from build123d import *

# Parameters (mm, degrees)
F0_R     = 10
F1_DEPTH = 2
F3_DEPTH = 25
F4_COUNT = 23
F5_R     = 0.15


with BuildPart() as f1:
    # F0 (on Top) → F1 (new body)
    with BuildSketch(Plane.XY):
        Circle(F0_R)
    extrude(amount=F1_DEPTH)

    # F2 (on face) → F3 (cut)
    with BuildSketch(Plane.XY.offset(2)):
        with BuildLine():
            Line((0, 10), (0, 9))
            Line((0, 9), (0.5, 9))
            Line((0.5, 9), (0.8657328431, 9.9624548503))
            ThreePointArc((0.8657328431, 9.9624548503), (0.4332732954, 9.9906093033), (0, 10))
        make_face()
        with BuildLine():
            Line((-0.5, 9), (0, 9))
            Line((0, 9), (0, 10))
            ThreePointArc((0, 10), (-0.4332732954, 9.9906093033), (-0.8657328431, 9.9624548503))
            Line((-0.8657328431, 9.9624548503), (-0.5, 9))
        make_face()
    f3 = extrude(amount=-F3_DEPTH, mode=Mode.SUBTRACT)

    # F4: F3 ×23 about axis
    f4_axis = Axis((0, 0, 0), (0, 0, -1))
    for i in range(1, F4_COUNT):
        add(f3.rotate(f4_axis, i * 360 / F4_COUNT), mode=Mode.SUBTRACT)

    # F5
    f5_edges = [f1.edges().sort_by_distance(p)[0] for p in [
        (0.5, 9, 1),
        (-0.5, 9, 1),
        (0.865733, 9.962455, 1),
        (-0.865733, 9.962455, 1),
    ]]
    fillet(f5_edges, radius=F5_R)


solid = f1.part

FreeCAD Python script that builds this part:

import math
import FreeCAD as App
import Part
import Sketcher


def edges_at(feature, points):
    """Names of the edges that pass closest to the given points."""
    edges = feature.Shape.Edges
    near = lambda p: min(range(len(edges)), key=lambda i: edges[i].distToShape(Part.Vertex(*p))[0])
    return sorted({f"Edge{near(p) + 1}" for p in points})

doc = App.newDocument("Part")
body = doc.addObject("PartDesign::Body", "Body")

# Sketch on XY plane
sketch1 = body.newObject("Sketcher::SketchObject", "Sketch")
sketch1.AttachmentSupport = (doc.getObject("XY_Plane"), [""])
sketch1.MapMode = "FlatFace"
sketch1.addGeometry(Part.Circle(App.Vector(0, 0, 0), App.Vector(0, 0, 1), 10), False)
sketch1.addConstraint(Sketcher.Constraint("Coincident", 0, 3, -1, 1))
sketch1.addConstraint(Sketcher.Constraint("Diameter", 0, 20.0))
pad1 = body.newObject("PartDesign::Pad", "Pad")
pad1.Profile = sketch1
pad1.Length = 2

# Sketch on XY plane
sketch2 = body.newObject("Sketcher::SketchObject", "Sketch001")
sketch2.AttachmentSupport = (doc.getObject("XY_Plane"), [""])
sketch2.MapMode = "FlatFace"
sketch2.AttachmentOffset = App.Placement(App.Vector(0, 0, 2), App.Rotation())
sketch2.addGeometry(Part.LineSegment(App.Vector(0.5, 9, 0), App.Vector(0.9, 10, 0)), False)
sketch2.addGeometry(Part.ArcOfCircle(Part.Circle(App.Vector(0, 0, 0), App.Vector(0, 0, 1), 10), math.radians(85.03), math.radians(90)), False)
sketch2.addGeometry(Part.ArcOfCircle(Part.Circle(App.Vector(0, 0, 0), App.Vector(0, 0, 1), 10), math.radians(90), math.radians(94.97)), False)
sketch2.addGeometry(Part.LineSegment(App.Vector(-0.9, 10, 0), App.Vector(-0.5, 9, 0)), False)
sketch2.addGeometry(Part.LineSegment(App.Vector(-0.5, 9, 0), App.Vector(0.5, 9, 0)), False)
sketch2.addConstraint(Sketcher.Constraint("Coincident", 0, 2, 1, 1))
sketch2.addConstraint(Sketcher.Constraint("Tangent", 1, 2, 2, 1))
sketch2.addConstraint(Sketcher.Constraint("Coincident", 2, 2, 3, 1))
sketch2.addConstraint(Sketcher.Constraint("Coincident", 3, 2, 4, 1))
sketch2.addConstraint(Sketcher.Constraint("Coincident", 4, 2, 0, 1))
sketch2.addConstraint(Sketcher.Constraint("Horizontal", 4))
sketch2.addConstraint(Sketcher.Constraint("Coincident", 1, 3, -1, 1))
sketch2.addConstraint(Sketcher.Constraint("Equal", 1, 2))
sketch2.addConstraint(Sketcher.Constraint("PointOnObject", 1, 2, -2))
sketch2.addConstraint(Sketcher.Constraint("Horizontal", 0, 2, 2, 2))
sketch2.addConstraint(Sketcher.Constraint("Equal", 0, 3))
sketch2.addConstraint(Sketcher.Constraint("Radius", 1, 10.0))
sketch2.addConstraint(Sketcher.Constraint("DistanceX", 4, 1, 4, 2, 1.0))
sketch2.addConstraint(Sketcher.Constraint("DistanceY", -1, 1, 3, 2, 9.0))
sketch2.addConstraint(Sketcher.Constraint("Distance", 0, 1.029602))
pocket1 = body.newObject("PartDesign::Pocket", "Pocket")
pocket1.Profile = sketch2
pocket1.Length = 25
doc.recompute()

polarpattern = body.newObject("PartDesign::PolarPattern", "PolarPattern")
polarpattern.Originals = [pocket1]
polarpattern.Axis = (doc.getObject("Z_Axis"), [""])
polarpattern.Angle = 360
polarpattern.Occurrences = 23
body.Tip = polarpattern
doc.recompute()

fillet = body.newObject("PartDesign::Fillet", "Fillet")
fillet.Base = (polarpattern, edges_at(polarpattern, [
    (0.5, 9, 1),
    (-0.5, 9, 1),
    (0.866, 9.962, 1),
    (-0.866, 9.962, 1),
]))
fillet.Radius = 0.15

doc.recompute()
